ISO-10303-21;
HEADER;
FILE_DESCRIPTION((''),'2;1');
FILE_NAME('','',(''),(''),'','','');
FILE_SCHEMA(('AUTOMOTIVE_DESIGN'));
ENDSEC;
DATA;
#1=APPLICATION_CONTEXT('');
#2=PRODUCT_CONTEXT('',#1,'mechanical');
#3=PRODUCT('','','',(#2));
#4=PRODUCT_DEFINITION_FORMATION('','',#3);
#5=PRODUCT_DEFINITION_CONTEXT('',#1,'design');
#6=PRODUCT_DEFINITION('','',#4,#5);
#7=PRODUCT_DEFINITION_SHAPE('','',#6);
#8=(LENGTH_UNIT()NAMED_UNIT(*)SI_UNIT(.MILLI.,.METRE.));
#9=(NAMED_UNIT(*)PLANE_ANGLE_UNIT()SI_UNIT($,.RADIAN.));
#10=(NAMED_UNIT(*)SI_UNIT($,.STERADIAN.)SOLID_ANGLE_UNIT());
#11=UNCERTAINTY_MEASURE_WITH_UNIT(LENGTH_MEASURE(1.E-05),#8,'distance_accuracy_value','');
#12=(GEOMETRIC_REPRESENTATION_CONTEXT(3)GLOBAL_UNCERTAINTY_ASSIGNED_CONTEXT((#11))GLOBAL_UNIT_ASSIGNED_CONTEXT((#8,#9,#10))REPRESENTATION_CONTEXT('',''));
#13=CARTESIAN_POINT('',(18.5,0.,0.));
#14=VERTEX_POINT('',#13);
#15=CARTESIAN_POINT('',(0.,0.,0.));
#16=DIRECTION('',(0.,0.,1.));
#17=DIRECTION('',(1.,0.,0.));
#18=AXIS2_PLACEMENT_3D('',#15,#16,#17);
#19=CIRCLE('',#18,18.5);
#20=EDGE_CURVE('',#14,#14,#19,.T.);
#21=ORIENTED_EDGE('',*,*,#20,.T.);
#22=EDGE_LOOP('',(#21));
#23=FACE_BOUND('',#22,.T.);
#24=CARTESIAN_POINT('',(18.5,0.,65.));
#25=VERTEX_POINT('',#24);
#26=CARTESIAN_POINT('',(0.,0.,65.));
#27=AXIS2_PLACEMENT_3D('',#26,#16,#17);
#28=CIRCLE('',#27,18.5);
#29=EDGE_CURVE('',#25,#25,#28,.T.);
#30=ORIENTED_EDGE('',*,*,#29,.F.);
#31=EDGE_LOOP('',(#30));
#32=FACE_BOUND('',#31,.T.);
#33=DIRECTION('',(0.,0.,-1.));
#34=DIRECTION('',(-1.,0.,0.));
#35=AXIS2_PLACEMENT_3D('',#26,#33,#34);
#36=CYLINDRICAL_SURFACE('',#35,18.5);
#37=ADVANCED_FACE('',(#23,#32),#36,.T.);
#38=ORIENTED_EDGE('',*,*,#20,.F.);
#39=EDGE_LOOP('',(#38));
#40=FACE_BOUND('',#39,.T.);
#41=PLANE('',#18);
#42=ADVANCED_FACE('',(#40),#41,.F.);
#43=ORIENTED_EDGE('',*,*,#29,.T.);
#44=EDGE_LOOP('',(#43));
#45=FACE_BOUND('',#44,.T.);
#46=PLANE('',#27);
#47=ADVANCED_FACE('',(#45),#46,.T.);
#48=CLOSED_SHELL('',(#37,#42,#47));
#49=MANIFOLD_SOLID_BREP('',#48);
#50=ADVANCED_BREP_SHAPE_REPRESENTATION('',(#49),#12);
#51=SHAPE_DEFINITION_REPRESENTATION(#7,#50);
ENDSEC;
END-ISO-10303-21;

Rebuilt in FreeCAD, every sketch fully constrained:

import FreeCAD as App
import Part
import Sketcher
from FreeCAD import Vector
Q = App.Units.Quantity

doc = App.newDocument("Part")
params = doc.addObject("Spreadsheet::Sheet", "Params")
for row, (alias, value) in enumerate([
    ("sketch1_diameter", "37 mm"),
    ("pad1_length", "65 mm"),
], start=1):
    params.set(f"A{row}", alias)
    params.set(f"B{row}", "=" + value)
    params.setAlias(f"B{row}", alias)

body = doc.addObject("PartDesign::Body", "Body")

# Sketch on XY plane
sketch1 = body.newObject("Sketcher::SketchObject", "Sketch")
sketch1.AttachmentSupport = (doc.getObject("XY_Plane"), [""])
sketch1.MapMode = "FlatFace"
sketch1.addGeometry(Part.Circle(Vector(0, 0, 0), Vector(0, 0, 1), 18.5), False)
sketch1.addConstraint(Sketcher.Constraint("Coincident", 0, 3, -1, 1))
sketch1.addConstraint(Sketcher.Constraint("Diameter", 0, Q("37 mm")))
sketch1.setExpression("Constraints[1]", "Params.sketch1_diameter")
pad1 = body.newObject("PartDesign::Pad", "Pad")
pad1.Profile = sketch1
pad1.setExpression("Length", "Params.pad1_length")

doc.recompute()
